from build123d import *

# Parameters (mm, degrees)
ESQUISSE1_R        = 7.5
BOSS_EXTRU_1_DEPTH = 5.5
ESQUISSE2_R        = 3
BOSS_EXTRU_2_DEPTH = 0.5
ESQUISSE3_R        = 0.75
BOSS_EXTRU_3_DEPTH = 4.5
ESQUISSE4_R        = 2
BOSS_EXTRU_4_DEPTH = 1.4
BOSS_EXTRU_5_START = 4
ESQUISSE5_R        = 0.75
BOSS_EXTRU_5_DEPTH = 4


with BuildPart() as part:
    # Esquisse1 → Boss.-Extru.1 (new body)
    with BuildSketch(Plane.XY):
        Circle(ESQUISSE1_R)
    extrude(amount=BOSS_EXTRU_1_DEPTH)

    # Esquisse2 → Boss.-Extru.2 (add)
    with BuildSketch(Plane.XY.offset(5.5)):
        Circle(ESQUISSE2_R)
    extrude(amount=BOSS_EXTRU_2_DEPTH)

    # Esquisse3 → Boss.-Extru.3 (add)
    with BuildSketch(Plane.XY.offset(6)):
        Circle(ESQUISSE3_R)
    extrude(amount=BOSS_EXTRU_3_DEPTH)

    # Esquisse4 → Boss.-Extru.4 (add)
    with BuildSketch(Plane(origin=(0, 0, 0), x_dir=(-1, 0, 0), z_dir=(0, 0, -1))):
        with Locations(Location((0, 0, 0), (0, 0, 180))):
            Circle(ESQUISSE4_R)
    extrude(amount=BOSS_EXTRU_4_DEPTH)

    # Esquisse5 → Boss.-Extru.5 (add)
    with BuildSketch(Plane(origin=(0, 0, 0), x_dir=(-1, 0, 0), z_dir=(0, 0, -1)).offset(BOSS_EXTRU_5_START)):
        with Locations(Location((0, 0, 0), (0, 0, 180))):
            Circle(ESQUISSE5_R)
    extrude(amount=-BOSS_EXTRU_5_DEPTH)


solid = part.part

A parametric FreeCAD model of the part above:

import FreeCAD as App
import Part
import Sketcher

V = App.Vector
Q = App.Units.Quantity

doc = App.newDocument("Part")
params = doc.addObject("Spreadsheet::Sheet", "Params")
for row, (alias, value) in enumerate([
    ("sketch1_diameter", "15 mm"),
    ("pad1_length", "5.5 mm"),
    ("sketch2_diameter", "6 mm"),
    ("pad2_length", "0.5 mm"),
    ("sketch3_diameter", "1.5 mm"),
    ("pad3_length", "4.5 mm"),
    ("sketch4_diameter", "4 mm"),
    ("pad4_length", "1.4 mm"),
    ("sketch5_diameter", "1.5 mm"),
    ("pad5_length", "4 mm"),
], start=1):
    params.set(f"A{row}", alias)
    params.set(f"B{row}", "=" + value)
    params.setAlias(f"B{row}", alias)

body = doc.addObject("PartDesign::Body", "Body")

# Sketch on XY plane
sketch1 = body.newObject("Sketcher::SketchObject", "Sketch")
sketch1.AttachmentSupport = (doc.getObject("XY_Plane"), [""])
sketch1.MapMode = "FlatFace"
sketch1.addGeometry(Part.Circle(V(0, 0, 0), V(0, 0, 1), 8), False)
sketch1.addConstraint([
    Sketcher.Constraint("Coincident", 0, 3, -1, 1),
    Sketcher.Constraint("Diameter", 0, Q("15 mm")),
])
sketch1.setExpression("Constraints[1]", "Params.sketch1_diameter")
pad1 = body.newObject("PartDesign::Pad", "Pad")
pad1.Profile = sketch1
pad1.setExpression("Length", "Params.pad1_length")

# Sketch on XY plane
sketch2 = body.newObject("Sketcher::SketchObject", "Sketch001")
sketch2.AttachmentSupport = (doc.getObject("XY_Plane"), [""])
sketch2.MapMode = "FlatFace"
sketch2.AttachmentOffset = App.Placement(V(0, 0, 5.5), App.Rotation())
sketch2.addGeometry(Part.Circle(V(0, 0, 0), V(0, 0, 1), 3), False)
sketch2.addConstraint([
    Sketcher.Constraint("Coincident", 0, 3, -1, 1),
    Sketcher.Constraint("Diameter", 0, Q("6 mm")),
])
sketch2.setExpression("Constraints[1]", "Params.sketch2_diameter")
pad2 = body.newObject("PartDesign::Pad", "Pad001")
pad2.Profile = sketch2
pad2.setExpression("Length", "Params.pad2_length")

# Sketch on XY plane
sketch3 = body.newObject("Sketcher::SketchObject", "Sketch002")
sketch3.AttachmentSupport = (doc.getObject("XY_Plane"), [""])
sketch3.MapMode = "FlatFace"
sketch3.AttachmentOffset = App.Placement(V(0, 0, 6), App.Rotation())
sketch3.addGeometry(Part.Circle(V(0, 0, 0), V(0, 0, 1), 0.8), False)
sketch3.addConstraint([
    Sketcher.Constraint("Coincident", 0, 3, -1, 1),
    Sketcher.Constraint("Diameter", 0, Q("1.5 mm")),
])
sketch3.setExpression("Constraints[1]", "Params.sketch3_diameter")
pad3 = body.newObject("PartDesign::Pad", "Pad002")
pad3.Profile = sketch3
pad3.setExpression("Length", "Params.pad3_length")

# Sketch on XY plane
sketch4 = body.newObject("Sketcher::SketchObject", "Sketch003")
sketch4.AttachmentSupport = (doc.getObject("XY_Plane"), [""])
sketch4.MapMode = "FlatFace"
sketch4.addGeometry(Part.Circle(V(0, 0, 0), V(0, 0, 1), 2), False)
sketch4.addConstraint([
    Sketcher.Constraint("Coincident", 0, 3, -1, 1),
    Sketcher.Constraint("Diameter", 0, Q("4 mm")),
])
sketch4.setExpression("Constraints[1]", "Params.sketch4_diameter")
pad4 = body.newObject("PartDesign::Pad", "Pad003")
pad4.Profile = sketch4
pad4.setExpression("Length", "Params.pad4_length")
pad4.Reversed = True

# Sketch on XY plane
sketch5 = body.newObject("Sketcher::SketchObject", "Sketch004")
sketch5.AttachmentSupport = (doc.getObject("XY_Plane"), [""])
sketch5.MapMode = "FlatFace"
sketch5.AttachmentOffset = App.Placement(V(0, 0, -4), App.Rotation())
sketch5.addGeometry(Part.Circle(V(0, 0, 0), V(0, 0, 1), 0.8), False)
sketch5.addConstraint([
    Sketcher.Constraint("Coincident", 0, 3, -1, 1),
    Sketcher.Constraint("Diameter", 0, Q("1.5 mm")),
])
sketch5.setExpression("Constraints[1]", "Params.sketch5_diameter")
pad5 = body.newObject("PartDesign::Pad", "Pad004")
pad5.Profile = sketch5
pad5.setExpression("Length", "Params.pad5_length")

doc.recompute()
